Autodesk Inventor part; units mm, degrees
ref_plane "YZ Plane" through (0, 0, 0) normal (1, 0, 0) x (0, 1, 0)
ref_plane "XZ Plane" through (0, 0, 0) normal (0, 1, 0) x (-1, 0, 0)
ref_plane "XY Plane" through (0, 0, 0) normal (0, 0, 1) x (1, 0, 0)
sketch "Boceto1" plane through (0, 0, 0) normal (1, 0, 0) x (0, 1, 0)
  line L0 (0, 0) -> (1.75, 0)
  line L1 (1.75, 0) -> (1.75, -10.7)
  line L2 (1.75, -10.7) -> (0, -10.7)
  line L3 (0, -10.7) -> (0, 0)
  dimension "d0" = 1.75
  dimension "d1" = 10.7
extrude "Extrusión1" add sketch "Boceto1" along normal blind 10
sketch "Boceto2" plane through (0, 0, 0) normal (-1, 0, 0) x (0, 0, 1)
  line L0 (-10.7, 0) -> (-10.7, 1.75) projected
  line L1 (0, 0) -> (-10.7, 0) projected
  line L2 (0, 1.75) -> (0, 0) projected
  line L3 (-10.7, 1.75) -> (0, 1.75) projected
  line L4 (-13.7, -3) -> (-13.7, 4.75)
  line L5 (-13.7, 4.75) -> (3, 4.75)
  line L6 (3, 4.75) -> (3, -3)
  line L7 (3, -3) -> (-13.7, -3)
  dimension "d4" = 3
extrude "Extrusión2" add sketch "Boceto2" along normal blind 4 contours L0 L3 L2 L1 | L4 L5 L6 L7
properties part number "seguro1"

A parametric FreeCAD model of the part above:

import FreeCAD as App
import Part
import Sketcher

V = App.Vector


def add_polygon(sketch, points):
    """Adds a closed chain of lines whose ends are joined by coincident constraints."""
    first, n = sketch.GeometryCount, len(points)
    for a, b in zip(points, points[1:] + points[:1]):
        sketch.addGeometry(Part.LineSegment(App.Vector(*a, 0), App.Vector(*b, 0)), False)
    for i in range(n):
        sketch.addConstraint(Sketcher.Constraint("Coincident", first + i, 2, first + (i + 1) % n, 1))

doc = App.newDocument("Part")
params = doc.addObject("Spreadsheet::Sheet", "Params")
for row, (alias, value) in enumerate([
    ("sketch1_height", "10.7 mm"),
    ("sketch1_width", "1.75 mm"),
    ("pad1_length", "10 mm"),
    ("sketch2_height", "16.7 mm"),
    ("sketch2_width", "7.75 mm"),
    ("pad2_length", "4 mm"),
], start=1):
    params.set(f"A{row}", alias)
    params.set(f"B{row}", "=" + value)
    params.setAlias(f"B{row}", alias)

body = doc.addObject("PartDesign::Body", "Body")

# Sketch on YZ plane
sketch1 = body.newObject("Sketcher::SketchObject", "Sketch")
sketch1.AttachmentSupport = (doc.getObject("YZ_Plane"), [""])
sketch1.MapMode = "FlatFace"
add_polygon(sketch1, [(1.8, 0), (0, 0), (0, -10.7), (1.8, -10.7)])  # lines 0-3
sketch1.addConstraint([
    Sketcher.Constraint("Horizontal", 0),
    Sketcher.Constraint("Vertical", 1),
    Sketcher.Constraint("Horizontal", 2),
    Sketcher.Constraint("Vertical", 3),
    Sketcher.Constraint("Coincident", 0, 2, -1, 1),
    Sketcher.Constraint("DistanceY", 1, 2, 1, 1, 10.7),
    Sketcher.Constraint("DistanceX", 0, 2, 0, 1, 1.75),
])
sketch1.setExpression("Constraints[9]", "Params.sketch1_height")
sketch1.setExpression("Constraints[10]", "Params.sketch1_width")
pad1 = body.newObject("PartDesign::Pad", "Pad")
pad1.Profile = sketch1
pad1.setExpression("Length", "Params.pad1_length")

# Sketch on YZ plane
sketch2 = body.newObject("Sketcher::SketchObject", "Sketch001")
sketch2.AttachmentSupport = (doc.getObject("YZ_Plane"), [""])
sketch2.MapMode = "FlatFace"
add_polygon(sketch2, [(5, -14), (-3, -14), (-3, 3), (5, 3)])  # lines 0-3
sketch2.addConstraint([
    Sketcher.Constraint("Horizontal", 0),
    Sketcher.Constraint("Vertical", 1),
    Sketcher.Constraint("Horizontal", 2),
    Sketcher.Constraint("Vertical", 3),
    Sketcher.Constraint("DistanceX", 0, 2, -1, 1, 3.0),
    Sketcher.Constraint("DistanceY", -1, 1, 1, 2, 3.0),
    Sketcher.Constraint("DistanceY", 1, 1, 1, 2, 16.7),
    Sketcher.Constraint("DistanceX", 0, 2, 0, 1, 7.75),
])
sketch2.setExpression("Constraints[10]", "Params.sketch2_height")
sketch2.setExpression("Constraints[11]", "Params.sketch2_width")
pad2 = body.newObject("PartDesign::Pad", "Pad001")
pad2.Profile = sketch2
pad2.setExpression("Length", "Params.pad2_length")
pad2.Reversed = True

doc.recompute()
